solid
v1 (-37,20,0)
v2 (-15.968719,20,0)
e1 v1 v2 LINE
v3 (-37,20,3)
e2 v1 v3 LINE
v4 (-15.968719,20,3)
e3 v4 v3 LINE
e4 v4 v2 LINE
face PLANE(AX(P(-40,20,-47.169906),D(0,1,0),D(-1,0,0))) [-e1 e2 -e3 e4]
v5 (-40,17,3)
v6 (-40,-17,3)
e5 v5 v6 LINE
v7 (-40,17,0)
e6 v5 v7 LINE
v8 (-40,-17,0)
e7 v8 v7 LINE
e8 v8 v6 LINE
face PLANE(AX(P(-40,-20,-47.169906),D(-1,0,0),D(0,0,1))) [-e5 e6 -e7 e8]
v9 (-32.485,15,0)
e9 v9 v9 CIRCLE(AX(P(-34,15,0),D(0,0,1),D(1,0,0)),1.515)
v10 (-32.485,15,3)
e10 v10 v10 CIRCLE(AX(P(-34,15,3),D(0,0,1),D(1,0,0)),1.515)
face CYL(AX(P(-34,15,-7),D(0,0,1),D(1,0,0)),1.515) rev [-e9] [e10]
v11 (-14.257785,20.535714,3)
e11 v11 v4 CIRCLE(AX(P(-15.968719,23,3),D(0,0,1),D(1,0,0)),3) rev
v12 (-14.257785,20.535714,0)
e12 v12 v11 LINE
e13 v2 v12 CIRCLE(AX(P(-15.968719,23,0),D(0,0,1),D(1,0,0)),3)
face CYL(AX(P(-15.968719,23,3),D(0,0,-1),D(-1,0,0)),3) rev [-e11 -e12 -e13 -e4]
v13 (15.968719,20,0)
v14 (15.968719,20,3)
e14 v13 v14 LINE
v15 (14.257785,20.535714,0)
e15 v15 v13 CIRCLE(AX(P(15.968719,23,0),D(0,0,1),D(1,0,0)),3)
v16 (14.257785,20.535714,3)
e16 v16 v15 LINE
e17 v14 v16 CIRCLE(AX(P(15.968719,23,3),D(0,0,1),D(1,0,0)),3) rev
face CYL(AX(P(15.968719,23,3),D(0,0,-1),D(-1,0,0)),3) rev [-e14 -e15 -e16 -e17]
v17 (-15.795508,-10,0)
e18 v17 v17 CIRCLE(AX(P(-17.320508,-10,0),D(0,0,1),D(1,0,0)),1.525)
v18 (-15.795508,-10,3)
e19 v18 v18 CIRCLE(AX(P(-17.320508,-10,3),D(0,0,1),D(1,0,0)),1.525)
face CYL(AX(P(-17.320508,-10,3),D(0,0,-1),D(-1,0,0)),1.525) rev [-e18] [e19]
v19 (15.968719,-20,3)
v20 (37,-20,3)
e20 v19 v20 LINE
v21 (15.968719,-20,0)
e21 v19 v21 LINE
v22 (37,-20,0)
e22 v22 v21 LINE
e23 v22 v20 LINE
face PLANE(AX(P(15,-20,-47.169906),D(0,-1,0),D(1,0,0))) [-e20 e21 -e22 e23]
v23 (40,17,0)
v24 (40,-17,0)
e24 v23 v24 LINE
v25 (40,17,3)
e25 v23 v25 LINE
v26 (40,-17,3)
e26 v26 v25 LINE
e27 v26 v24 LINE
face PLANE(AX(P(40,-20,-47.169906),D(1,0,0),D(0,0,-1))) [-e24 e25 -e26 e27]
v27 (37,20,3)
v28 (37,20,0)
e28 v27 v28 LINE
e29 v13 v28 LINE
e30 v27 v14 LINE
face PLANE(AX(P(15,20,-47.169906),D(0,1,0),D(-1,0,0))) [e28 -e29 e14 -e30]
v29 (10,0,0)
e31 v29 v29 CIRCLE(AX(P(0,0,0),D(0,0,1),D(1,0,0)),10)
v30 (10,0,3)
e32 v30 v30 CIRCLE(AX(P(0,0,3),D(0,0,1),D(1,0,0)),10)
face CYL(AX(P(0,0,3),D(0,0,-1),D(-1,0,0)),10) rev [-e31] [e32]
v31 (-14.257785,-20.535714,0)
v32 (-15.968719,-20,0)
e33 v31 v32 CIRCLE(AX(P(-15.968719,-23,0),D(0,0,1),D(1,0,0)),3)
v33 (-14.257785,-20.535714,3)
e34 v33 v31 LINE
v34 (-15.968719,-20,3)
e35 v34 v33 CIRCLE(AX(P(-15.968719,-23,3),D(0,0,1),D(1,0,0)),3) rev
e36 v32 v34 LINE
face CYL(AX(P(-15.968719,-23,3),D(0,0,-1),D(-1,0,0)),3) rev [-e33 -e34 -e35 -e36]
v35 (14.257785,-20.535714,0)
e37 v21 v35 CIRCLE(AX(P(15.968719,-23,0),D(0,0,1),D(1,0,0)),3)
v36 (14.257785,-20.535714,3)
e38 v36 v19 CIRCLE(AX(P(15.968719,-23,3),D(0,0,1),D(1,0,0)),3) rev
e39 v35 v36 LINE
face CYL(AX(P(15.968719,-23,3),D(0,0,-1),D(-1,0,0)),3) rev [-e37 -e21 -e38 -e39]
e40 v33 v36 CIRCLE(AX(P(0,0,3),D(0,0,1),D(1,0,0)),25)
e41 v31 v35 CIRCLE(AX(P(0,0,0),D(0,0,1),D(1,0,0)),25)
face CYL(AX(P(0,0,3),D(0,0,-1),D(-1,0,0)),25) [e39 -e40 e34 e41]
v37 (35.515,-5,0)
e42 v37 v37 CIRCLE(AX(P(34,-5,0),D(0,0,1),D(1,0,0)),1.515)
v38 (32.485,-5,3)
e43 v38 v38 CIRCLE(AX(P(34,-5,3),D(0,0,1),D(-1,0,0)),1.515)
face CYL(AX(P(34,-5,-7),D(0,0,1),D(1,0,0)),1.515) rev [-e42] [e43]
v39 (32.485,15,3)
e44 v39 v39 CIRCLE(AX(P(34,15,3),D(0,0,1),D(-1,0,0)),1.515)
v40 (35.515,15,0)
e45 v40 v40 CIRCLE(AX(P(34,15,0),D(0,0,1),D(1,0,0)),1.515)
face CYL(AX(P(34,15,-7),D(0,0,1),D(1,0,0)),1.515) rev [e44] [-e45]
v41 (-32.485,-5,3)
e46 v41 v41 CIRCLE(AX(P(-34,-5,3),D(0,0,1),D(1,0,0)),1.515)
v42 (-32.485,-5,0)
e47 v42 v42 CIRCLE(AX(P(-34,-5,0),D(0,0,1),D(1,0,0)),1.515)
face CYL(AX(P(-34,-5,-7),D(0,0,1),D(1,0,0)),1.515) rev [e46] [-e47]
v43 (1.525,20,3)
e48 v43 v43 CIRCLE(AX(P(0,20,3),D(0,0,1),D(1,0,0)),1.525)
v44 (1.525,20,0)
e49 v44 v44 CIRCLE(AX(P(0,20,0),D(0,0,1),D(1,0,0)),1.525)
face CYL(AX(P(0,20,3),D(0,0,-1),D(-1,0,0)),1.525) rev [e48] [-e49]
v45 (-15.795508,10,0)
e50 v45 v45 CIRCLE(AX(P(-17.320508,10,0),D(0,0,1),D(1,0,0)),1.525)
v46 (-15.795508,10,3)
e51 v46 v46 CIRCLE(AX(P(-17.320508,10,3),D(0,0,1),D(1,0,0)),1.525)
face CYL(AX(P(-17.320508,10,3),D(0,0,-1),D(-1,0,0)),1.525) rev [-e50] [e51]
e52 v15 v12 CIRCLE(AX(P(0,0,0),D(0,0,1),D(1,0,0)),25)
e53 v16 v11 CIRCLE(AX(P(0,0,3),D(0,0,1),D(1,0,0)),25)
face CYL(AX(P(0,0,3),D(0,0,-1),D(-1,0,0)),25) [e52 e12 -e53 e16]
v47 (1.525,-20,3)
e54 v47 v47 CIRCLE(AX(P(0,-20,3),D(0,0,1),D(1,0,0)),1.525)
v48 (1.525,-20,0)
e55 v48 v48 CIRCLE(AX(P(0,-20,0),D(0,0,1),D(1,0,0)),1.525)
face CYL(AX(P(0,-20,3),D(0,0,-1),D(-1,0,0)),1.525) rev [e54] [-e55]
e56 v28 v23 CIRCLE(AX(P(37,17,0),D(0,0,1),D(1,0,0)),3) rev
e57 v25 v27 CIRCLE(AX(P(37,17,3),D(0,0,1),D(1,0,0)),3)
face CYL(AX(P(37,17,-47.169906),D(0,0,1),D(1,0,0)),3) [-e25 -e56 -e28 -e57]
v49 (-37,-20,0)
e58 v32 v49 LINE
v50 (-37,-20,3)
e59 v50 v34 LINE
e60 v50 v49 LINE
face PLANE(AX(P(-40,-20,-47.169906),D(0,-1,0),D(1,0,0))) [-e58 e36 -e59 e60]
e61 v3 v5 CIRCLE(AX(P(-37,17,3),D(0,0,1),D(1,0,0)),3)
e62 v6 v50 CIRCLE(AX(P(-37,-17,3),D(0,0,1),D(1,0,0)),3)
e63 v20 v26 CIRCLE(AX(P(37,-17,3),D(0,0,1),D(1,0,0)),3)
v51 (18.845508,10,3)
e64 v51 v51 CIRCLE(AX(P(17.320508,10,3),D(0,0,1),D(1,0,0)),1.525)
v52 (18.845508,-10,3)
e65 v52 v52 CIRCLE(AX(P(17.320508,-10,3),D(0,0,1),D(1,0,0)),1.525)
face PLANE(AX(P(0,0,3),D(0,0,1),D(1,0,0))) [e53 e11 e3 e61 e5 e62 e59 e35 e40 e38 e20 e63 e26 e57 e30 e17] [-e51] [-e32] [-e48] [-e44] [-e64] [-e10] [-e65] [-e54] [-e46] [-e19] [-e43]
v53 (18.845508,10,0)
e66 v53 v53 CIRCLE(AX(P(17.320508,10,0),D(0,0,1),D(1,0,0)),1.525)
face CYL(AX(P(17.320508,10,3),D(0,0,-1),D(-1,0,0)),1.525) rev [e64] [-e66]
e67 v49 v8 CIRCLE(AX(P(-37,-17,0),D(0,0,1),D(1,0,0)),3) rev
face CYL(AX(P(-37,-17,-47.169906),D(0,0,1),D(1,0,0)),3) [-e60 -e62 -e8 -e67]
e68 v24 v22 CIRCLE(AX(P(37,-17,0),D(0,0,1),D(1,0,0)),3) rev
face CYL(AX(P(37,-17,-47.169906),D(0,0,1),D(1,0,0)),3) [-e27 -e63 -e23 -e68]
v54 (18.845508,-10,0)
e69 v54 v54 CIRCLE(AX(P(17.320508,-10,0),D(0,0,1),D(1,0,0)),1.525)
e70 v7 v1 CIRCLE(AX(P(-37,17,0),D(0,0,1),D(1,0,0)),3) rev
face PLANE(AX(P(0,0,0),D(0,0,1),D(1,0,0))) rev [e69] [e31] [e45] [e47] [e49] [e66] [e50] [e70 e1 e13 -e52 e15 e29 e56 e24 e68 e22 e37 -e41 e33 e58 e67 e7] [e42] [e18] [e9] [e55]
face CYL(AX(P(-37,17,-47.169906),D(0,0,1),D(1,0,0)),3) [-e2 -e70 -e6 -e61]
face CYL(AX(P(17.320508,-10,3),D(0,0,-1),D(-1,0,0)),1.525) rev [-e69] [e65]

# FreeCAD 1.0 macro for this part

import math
import FreeCAD as App
import Part
import Sketcher


def edges_at(feature, points):
    """Names of the edges that pass closest to the given points."""
    edges = feature.Shape.Edges
    near = lambda p: min(range(len(edges)), key=lambda i: edges[i].distToShape(Part.Vertex(*p))[0])
    return sorted({f"Edge{near(p) + 1}" for p in points})

doc = App.newDocument("Part")
body = doc.addObject("PartDesign::Body", "Body")

sketch1 = body.newObject("Sketcher::SketchObject", "Sketch")
sketch1.AttachmentSupport = (doc.getObject("XY_Plane"), [""])
sketch1.MapMode = "FlatFace"
sketch1.addGeometry(Part.Circle(App.Vector(0, 0, 0), App.Vector(0, 0, 1), 25), False)
sketch1.addGeometry(Part.Circle(App.Vector(-17.3, -10, 0), App.Vector(0, 0, 1), 1.5), False)
sketch1.addGeometry(Part.Circle(App.Vector(0, -20, 0), App.Vector(0, 0, 1), 1.5), False)
sketch1.addGeometry(Part.Circle(App.Vector(0, 0, 0), App.Vector(0, 0, 1), 10), False)
sketch1.addGeometry(Part.Circle(App.Vector(17.3, -10, 0), App.Vector(0, 0, 1), 1.5), False)
sketch1.addGeometry(Part.Circle(App.Vector(-17.3, 10, 0), App.Vector(0, 0, 1), 1.5), False)
sketch1.addGeometry(Part.Circle(App.Vector(17.3, 10, 0), App.Vector(0, 0, 1), 1.5), False)
sketch1.addGeometry(Part.Circle(App.Vector(0, 20, 0), App.Vector(0, 0, 1), 1.5), False)
sketch1.addConstraint(Sketcher.Constraint("Coincident", 0, 3, -1, 1))
sketch1.addConstraint(Sketcher.Constraint("Coincident", 3, 3, -1, 1))
sketch1.addConstraint(Sketcher.Constraint("Equal", 1, 2))
sketch1.addConstraint(Sketcher.Constraint("Equal", 2, 4))
sketch1.addConstraint(Sketcher.Constraint("Equal", 4, 5))
sketch1.addConstraint(Sketcher.Constraint("Equal", 5, 6))
sketch1.addConstraint(Sketcher.Constraint("Equal", 6, 7))
sketch1.addConstraint(Sketcher.Constraint("Symmetric", 4, 3, 5, 3, -1, 1))
sketch1.addConstraint(Sketcher.Constraint("Symmetric", 1, 3, 6, 3, -1, 1))
sketch1.addConstraint(Sketcher.Constraint("Symmetric", 2, 3, 7, 3, -1, 1))
sketch1.addConstraint(Sketcher.Constraint("Symmetric", 1, 3, 4, 3, -2))
sketch1.addConstraint(Sketcher.Constraint("PointOnObject", 2, 3, -2))
sketch1.addConstraint(Sketcher.Constraint("Diameter", 0, 50.0))
sketch1.addConstraint(Sketcher.Constraint("Diameter", 3, 20.0))
sketch1.addConstraint(Sketcher.Constraint("Diameter", 1, 3.05))
sketch1.addConstraint(Sketcher.Constraint("DistanceY", 1, 3, -1, 1, 10.0))
sketch1.addConstraint(Sketcher.Constraint("DistanceY", 2, 3, -1, 1, 20.0))
sketch1.addConstraint(Sketcher.Constraint("DistanceX", 1, 3, -1, 1, 17.320508))
pad1 = body.newObject("PartDesign::Pad", "Pad")
pad1.Profile = sketch1
pad1.Length = 3

sketch2 = body.newObject("Sketcher::SketchObject", "Sketch001")
sketch2.AttachmentSupport = (doc.getObject("XY_Plane"), [""])
sketch2.MapMode = "FlatFace"
sketch2.AttachmentOffset = App.Placement(App.Vector(0, 0, 3), App.Rotation())
sketch2.addGeometry(Part.LineSegment(App.Vector(40, 20, 0), App.Vector(15, 20, 0)), False)
sketch2.addGeometry(Part.ArcOfCircle(Part.Circle(App.Vector(0, 0, 0), App.Vector(0, 0, 1), 25), math.radians(-53), math.radians(53)), False)
sketch2.addGeometry(Part.LineSegment(App.Vector(15, -20, 0), App.Vector(40, -20, 0)), False)
sketch2.addGeometry(Part.LineSegment(App.Vector(40, -20, 0), App.Vector(40, 20, 0)), False)
sketch2.addGeometry(Part.LineSegment(App.Vector(-40, -20, 0), App.Vector(-15, -20, 0)), False)
sketch2.addGeometry(Part.ArcOfCircle(Part.Circle(App.Vector(0, 0, 0), App.Vector(0, 0, 1), 25), math.radians(127), math.radians(233)), False)
sketch2.addGeometry(Part.LineSegment(App.Vector(-15, 20, 0), App.Vector(-40, 20, 0)), False)
sketch2.addGeometry(Part.LineSegment(App.Vector(-40, 20, 0), App.Vector(-40, -20, 0)), False)
sketch2.addConstraint(Sketcher.Constraint("Coincident", 0, 2, 1, 2))
sketch2.addConstraint(Sketcher.Constraint("Coincident", 1, 1, 2, 1))
sketch2.addConstraint(Sketcher.Constraint("Coincident", 2, 2, 3, 1))
sketch2.addConstraint(Sketcher.Constraint("Coincident", 3, 2, 0, 1))
sketch2.addConstraint(Sketcher.Constraint("Coincident", 4, 2, 5, 2))
sketch2.addConstraint(Sketcher.Constraint("Coincident", 5, 1, 6, 1))
sketch2.addConstraint(Sketcher.Constraint("Coincident", 6, 2, 7, 1))
sketch2.addConstraint(Sketcher.Constraint("Coincident", 7, 2, 4, 1))
sketch2.addConstraint(Sketcher.Constraint("Horizontal", 0))
sketch2.addConstraint(Sketcher.Constraint("Horizontal", 2))
sketch2.addConstraint(Sketcher.Constraint("Vertical", 3))
sketch2.addConstraint(Sketcher.Constraint("Horizontal", 4))
sketch2.addConstraint(Sketcher.Constraint("Horizontal", 6))
sketch2.addConstraint(Sketcher.Constraint("Vertical", 7))
sketch2.addConstraint(Sketcher.Constraint("Coincident", 1, 3, -1, 1))
sketch2.addConstraint(Sketcher.Constraint("Coincident", 5, 3, -1, 1))
sketch2.addConstraint(Sketcher.Constraint("Equal", 1, 5))
sketch2.addConstraint(Sketcher.Constraint("Symmetric", 2, 2, 6, 2, -1, 1))
sketch2.addConstraint(Sketcher.Constraint("Horizontal", 2, 2, 4, 2))
sketch2.addConstraint(Sketcher.Constraint("Horizontal", 3, 2, 5, 1))
sketch2.addConstraint(Sketcher.Constraint("Radius", 1, 25.0))
sketch2.addConstraint(Sketcher.Constraint("DistanceX", 0, 2, 0, 1, 25.0))
sketch2.addConstraint(Sketcher.Constraint("DistanceY", 3, 1, 3, 2, 40.0))
pad2 = body.newObject("PartDesign::Pad", "Pad001")
pad2.Profile = sketch2
pad2.Length = 3
pad2.Reversed = True
doc.recompute()

fillet = body.newObject("PartDesign::Fillet", "Fillet")
fillet.Base = (pad2, edges_at(pad2, [
    (40, 20, 1.5),
    (40, -20, 1.5),
    (15, -20, 1.5),
    (15, 20, 1.5),
    (-40, -20, 1.5),
    (-40, 20, 1.5),
    (-15, 20, 1.5),
    (-15, -20, 1.5),
]))
fillet.Radius = 3

sketch3 = body.newObject("Sketcher::SketchObject", "Sketch002")
sketch3.AttachmentSupport = (doc.getObject("XY_Plane"), [""])
sketch3.MapMode = "FlatFace"
sketch3.AttachmentOffset = App.Placement(App.Vector(0, 0, 3), App.Rotation())
sketch3.addGeometry(Part.Circle(App.Vector(-34, 15, 0), App.Vector(0, 0, 1), 1.5), False)
sketch3.addGeometry(Part.Circle(App.Vector(-34, -5, 0), App.Vector(0, 0, 1), 1.5), False)
sketch3.addGeometry(Part.Circle(App.Vector(34, -5, 0), App.Vector(0, 0, 1), 1.5), False)
sketch3.addGeometry(Part.Circle(App.Vector(34, 15, 0), App.Vector(0, 0, 1), 1.5), False)
sketch3.addConstraint(Sketcher.Constraint("Equal", 0, 1))
sketch3.addConstraint(Sketcher.Constraint("Equal", 1, 2))
sketch3.addConstraint(Sketcher.Constraint("Equal", 2, 3))
sketch3.addConstraint(Sketcher.Constraint("Symmetric", 1, 3, 2, 3, -2))
sketch3.addConstraint(Sketcher.Constraint("Symmetric", 0, 3, 3, 3, -2))
sketch3.addConstraint(Sketcher.Constraint("Vertical", 0, 3, 1, 3))
sketch3.addConstraint(Sketcher.Constraint("Diameter", 0, 3.03))
sketch3.addConstraint(Sketcher.Constraint("DistanceX", 0, 3, -1, 1, 34.0))
sketch3.addConstraint(Sketcher.Constraint("DistanceY", -1, 1, 0, 3, 15.0))
sketch3.addConstraint(Sketcher.Constraint("DistanceY", 1, 3, -1, 1, 5.0))
pocket1 = body.newObject("PartDesign::Pocket", "Pocket")
pocket1.Profile = sketch3
pocket1.Length = 10

doc.recompute()
